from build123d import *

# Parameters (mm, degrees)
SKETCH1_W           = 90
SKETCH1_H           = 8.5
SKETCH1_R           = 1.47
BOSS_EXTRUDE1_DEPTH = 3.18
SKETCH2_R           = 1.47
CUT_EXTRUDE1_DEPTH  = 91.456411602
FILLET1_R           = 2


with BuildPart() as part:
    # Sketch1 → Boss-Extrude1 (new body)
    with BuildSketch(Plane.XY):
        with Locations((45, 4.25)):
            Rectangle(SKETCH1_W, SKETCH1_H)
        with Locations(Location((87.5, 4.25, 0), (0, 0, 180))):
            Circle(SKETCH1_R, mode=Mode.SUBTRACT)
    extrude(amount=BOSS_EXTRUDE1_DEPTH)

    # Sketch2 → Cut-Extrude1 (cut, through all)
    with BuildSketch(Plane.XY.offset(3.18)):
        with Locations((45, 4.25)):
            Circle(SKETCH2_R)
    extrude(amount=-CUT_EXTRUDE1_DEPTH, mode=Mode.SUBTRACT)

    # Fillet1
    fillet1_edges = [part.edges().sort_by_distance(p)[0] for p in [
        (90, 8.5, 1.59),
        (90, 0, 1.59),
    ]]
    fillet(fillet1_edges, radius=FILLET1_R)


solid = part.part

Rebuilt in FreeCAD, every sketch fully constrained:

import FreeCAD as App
import Part
import Sketcher
from FreeCAD import Vector
Q = App.Units.Quantity


def edges_at(feature, points):
    """Names of the edges that pass closest to the given points."""
    edges = feature.Shape.Edges
    near = lambda p: min(range(len(edges)), key=lambda i: edges[i].distToShape(Part.Vertex(*p))[0])
    return sorted({f"Edge{near(p) + 1}" for p in points})


def add_polygon(sketch, points):
    """Adds a closed chain of lines whose ends are joined by coincident constraints."""
    first, n = sketch.GeometryCount, len(points)
    for a, b in zip(points, points[1:] + points[:1]):
        sketch.addGeometry(Part.LineSegment(App.Vector(*a, 0), App.Vector(*b, 0)), False)
    for i in range(n):
        sketch.addConstraint(Sketcher.Constraint("Coincident", first + i, 2, first + (i + 1) % n, 1))

doc = App.newDocument("Part")
body = doc.addObject("PartDesign::Body", "Body")

# Sketch on XY plane
sketch1 = body.newObject("Sketcher::SketchObject", "Sketch")
sketch1.AttachmentSupport = (doc.getObject("XY_Plane"), [""])
sketch1.MapMode = "FlatFace"
add_polygon(sketch1, [(0, 8.5), (0, 0), (90, 0), (90, 8.5)])  # lines 0-3
sketch1.addGeometry(Part.Circle(Vector(87.5, 4.25, 0), Vector(0, 0, 1), 1.47), False)  # 4
sketch1.addConstraint([
    Sketcher.Constraint("Vertical", 0),
    Sketcher.Constraint("Horizontal", 1),
    Sketcher.Constraint("Vertical", 2),
    Sketcher.Constraint("Horizontal", 3),
    Sketcher.Constraint("Coincident", 0, 2, -1, 1),
    Sketcher.Constraint("Diameter", 4, Q("2.94 mm")),
    Sketcher.Constraint("DistanceX", 1, 1, 1, 2, Q("90 mm")),
    Sketcher.Constraint("DistanceY", 0, 2, 0, 1, Q("8.5 mm")),
    Sketcher.Constraint("DistanceX", -1, 1, 4, 3, Q("87.5 mm")),
    Sketcher.Constraint("DistanceY", -1, 1, 4, 3, Q("4.25 mm")),
])
pad1 = body.newObject("PartDesign::Pad", "Pad")
pad1.Profile = sketch1
pad1.Length = 3.18

# Sketch on XY plane
sketch2 = body.newObject("Sketcher::SketchObject", "Sketch001")
sketch2.AttachmentSupport = (doc.getObject("XY_Plane"), [""])
sketch2.MapMode = "FlatFace"
sketch2.AttachmentOffset = App.Placement(Vector(0, 0, 3.18), App.Rotation())
sketch2.addGeometry(Part.Circle(Vector(45, 4.25, 0), Vector(0, 0, 1), 1.47), False)
sketch2.addConstraint([
    Sketcher.Constraint("Diameter", 0, Q("2.94 mm")),
    Sketcher.Constraint("DistanceX", -1, 1, 0, 3, Q("45 mm")),
    Sketcher.Constraint("DistanceY", -1, 1, 0, 3, Q("4.25 mm")),
])
pocket1 = body.newObject("PartDesign::Pocket", "Pocket")
pocket1.Profile = sketch2
pocket1.Type = "ThroughAll"
doc.recompute()

fillet = body.newObject("PartDesign::Fillet", "Fillet")
fillet.Base = (pocket1, edges_at(pocket1, [(90, 8.5, 1.59), (90, 0, 1.59)]))
fillet.Radius = 2

doc.recompute()
